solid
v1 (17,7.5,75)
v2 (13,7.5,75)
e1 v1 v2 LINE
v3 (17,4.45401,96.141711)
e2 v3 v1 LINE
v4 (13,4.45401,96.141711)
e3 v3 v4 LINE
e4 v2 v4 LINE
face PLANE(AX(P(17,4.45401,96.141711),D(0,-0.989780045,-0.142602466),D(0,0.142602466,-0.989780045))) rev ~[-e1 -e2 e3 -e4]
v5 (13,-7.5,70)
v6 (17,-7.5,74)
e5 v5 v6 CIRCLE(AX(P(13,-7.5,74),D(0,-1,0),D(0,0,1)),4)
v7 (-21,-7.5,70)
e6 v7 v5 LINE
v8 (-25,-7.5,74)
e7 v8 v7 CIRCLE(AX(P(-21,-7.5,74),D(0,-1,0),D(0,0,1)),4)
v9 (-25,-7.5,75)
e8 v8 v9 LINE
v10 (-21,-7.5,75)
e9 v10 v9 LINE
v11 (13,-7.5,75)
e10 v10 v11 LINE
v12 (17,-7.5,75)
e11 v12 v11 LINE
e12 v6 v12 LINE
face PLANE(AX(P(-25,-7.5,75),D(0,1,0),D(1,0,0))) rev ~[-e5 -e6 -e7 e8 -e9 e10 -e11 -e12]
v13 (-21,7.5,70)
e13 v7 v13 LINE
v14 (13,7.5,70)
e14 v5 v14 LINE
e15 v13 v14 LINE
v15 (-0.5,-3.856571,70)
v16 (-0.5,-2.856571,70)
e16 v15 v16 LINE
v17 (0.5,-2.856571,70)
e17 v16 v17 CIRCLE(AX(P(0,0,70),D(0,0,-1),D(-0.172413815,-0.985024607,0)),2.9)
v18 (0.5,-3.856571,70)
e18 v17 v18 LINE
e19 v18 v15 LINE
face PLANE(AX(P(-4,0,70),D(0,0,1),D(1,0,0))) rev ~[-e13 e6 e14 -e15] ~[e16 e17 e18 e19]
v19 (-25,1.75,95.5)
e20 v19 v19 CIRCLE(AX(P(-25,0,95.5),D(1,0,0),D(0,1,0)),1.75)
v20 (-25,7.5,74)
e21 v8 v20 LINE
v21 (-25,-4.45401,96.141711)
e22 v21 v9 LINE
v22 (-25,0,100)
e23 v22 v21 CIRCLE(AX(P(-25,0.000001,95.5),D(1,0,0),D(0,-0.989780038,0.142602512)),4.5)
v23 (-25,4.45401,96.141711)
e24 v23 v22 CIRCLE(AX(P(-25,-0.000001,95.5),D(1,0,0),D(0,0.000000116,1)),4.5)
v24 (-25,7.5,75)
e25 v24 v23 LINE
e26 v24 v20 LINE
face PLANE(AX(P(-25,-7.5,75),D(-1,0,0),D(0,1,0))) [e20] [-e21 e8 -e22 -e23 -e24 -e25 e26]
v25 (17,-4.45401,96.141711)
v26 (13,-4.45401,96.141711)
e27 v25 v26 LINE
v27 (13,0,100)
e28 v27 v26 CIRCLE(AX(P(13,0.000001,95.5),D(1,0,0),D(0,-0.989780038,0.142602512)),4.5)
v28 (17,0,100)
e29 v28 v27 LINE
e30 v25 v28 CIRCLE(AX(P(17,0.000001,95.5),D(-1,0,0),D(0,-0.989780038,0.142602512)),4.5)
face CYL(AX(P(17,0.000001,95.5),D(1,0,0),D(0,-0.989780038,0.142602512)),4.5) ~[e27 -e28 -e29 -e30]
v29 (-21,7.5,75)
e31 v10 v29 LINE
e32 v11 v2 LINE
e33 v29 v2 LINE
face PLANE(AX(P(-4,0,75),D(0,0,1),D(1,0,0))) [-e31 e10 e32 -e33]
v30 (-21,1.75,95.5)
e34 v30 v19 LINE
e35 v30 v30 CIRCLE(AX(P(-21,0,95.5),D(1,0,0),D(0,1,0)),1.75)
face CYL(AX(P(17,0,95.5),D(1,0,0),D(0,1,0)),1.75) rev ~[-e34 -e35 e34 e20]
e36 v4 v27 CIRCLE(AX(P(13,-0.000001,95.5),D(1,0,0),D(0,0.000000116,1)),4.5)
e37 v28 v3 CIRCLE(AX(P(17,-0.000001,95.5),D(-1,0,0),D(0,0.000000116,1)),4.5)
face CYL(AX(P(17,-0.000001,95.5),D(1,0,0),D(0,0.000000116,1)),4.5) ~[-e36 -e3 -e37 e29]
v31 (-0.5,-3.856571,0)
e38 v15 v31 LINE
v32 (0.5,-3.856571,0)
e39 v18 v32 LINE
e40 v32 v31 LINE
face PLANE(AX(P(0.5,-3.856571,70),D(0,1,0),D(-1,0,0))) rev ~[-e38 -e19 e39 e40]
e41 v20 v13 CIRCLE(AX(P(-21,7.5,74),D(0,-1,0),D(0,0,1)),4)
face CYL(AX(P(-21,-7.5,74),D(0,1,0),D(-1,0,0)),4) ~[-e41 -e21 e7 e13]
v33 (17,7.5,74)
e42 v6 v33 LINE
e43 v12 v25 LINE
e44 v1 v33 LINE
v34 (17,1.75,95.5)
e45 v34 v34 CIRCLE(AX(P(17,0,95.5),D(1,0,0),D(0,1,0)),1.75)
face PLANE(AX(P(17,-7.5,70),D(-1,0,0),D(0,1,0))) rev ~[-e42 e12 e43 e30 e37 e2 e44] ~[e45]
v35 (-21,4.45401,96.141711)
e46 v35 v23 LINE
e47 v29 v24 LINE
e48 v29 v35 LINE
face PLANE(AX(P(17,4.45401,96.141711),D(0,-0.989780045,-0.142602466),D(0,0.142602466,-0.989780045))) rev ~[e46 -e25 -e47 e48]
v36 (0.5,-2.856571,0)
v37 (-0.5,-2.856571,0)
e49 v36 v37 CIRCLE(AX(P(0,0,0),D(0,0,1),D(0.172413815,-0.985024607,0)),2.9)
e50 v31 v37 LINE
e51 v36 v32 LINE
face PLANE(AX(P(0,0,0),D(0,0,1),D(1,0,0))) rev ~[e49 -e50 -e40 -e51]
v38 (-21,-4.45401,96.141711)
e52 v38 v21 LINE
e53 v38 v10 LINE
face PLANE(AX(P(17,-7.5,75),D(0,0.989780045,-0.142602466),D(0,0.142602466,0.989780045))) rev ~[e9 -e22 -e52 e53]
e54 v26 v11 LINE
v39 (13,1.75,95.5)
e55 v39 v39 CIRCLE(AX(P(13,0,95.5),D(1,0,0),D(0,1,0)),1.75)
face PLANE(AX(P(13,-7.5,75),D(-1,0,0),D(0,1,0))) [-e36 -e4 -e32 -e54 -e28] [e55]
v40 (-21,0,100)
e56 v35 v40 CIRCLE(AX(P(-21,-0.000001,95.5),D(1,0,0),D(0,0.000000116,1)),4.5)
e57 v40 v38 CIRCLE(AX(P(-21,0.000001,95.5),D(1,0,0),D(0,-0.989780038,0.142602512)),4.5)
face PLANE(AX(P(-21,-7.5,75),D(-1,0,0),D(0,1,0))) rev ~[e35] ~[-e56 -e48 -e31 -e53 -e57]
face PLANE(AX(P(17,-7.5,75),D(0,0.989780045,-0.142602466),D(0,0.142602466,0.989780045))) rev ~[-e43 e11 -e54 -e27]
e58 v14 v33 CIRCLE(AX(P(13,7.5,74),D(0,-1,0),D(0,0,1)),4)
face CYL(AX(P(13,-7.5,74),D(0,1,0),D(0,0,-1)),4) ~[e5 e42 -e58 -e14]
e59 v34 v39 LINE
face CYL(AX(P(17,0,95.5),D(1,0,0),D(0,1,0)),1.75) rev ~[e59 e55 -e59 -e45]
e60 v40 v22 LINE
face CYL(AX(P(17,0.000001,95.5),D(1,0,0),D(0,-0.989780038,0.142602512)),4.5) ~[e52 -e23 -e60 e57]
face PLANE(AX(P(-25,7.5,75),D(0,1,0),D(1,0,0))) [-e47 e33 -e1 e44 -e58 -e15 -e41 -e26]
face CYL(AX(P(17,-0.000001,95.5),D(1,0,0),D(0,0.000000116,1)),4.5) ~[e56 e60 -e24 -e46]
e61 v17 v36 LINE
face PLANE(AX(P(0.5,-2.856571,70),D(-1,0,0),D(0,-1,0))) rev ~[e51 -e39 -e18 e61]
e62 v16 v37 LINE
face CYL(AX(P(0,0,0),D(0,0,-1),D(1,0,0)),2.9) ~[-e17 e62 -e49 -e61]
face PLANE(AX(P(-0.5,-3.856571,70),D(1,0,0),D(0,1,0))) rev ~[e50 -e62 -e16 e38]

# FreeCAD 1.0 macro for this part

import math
import FreeCAD as App
import Part
import Sketcher
Q = App.Units.Quantity


def edges_at(feature, points):
    """Names of the edges that pass closest to the given points."""
    edges = feature.Shape.Edges
    near = lambda p: min(range(len(edges)), key=lambda i: edges[i].distToShape(Part.Vertex(*p))[0])
    return sorted({f"Edge{near(p) + 1}" for p in points})


def add_polygon(sketch, points):
    """Adds a closed chain of lines whose ends are joined by coincident constraints."""
    first, n = sketch.GeometryCount, len(points)
    for a, b in zip(points, points[1:] + points[:1]):
        sketch.addGeometry(Part.LineSegment(App.Vector(*a, 0), App.Vector(*b, 0)), False)
    for i in range(n):
        sketch.addConstraint(Sketcher.Constraint("Coincident", first + i, 2, first + (i + 1) % n, 1))

doc = App.newDocument("Part")
body = doc.addObject("PartDesign::Body", "Body")

# Sketch on XY plane
sketch1 = body.newObject("Sketcher::SketchObject", "Sketch")
sketch1.AttachmentSupport = (doc.getObject("XY_Plane"), [""])
sketch1.MapMode = "FlatFace"
sketch1.addGeometry(Part.Circle(App.Vector(0, 0, 0), App.Vector(0, 0, 1), 2.9), False)
sketch1.addConstraint(Sketcher.Constraint("Coincident", 0, 3, -1, 1))
sketch1.addConstraint(Sketcher.Constraint("Diameter", 0, Q("5.8 mm")))
pad1 = body.newObject("PartDesign::Pad", "Pad")
pad1.Profile = sketch1
pad1.Length = 70

# Sketch on XY plane
sketch2 = body.newObject("Sketcher::SketchObject", "Sketch001")
sketch2.AttachmentSupport = (doc.getObject("XY_Plane"), [""])
sketch2.MapMode = "FlatFace"
sketch2.AttachmentOffset = App.Placement(App.Vector(0, 0, 70), App.Rotation())
add_polygon(sketch2, [(-25, 8), (-25, -8), (17, -8), (17, 8)])  # lines 0-3
sketch2.addConstraint(Sketcher.Constraint("Vertical", 0))
sketch2.addConstraint(Sketcher.Constraint("Horizontal", 1))
sketch2.addConstraint(Sketcher.Constraint("Vertical", 2))
sketch2.addConstraint(Sketcher.Constraint("Horizontal", 3))
sketch2.addConstraint(Sketcher.Constraint("DistanceX", 1, 1, 1, 2, Q("42 mm")))
sketch2.addConstraint(Sketcher.Constraint("DistanceY", 0, 2, 0, 1, Q("15 mm")))
sketch2.addConstraint(Sketcher.Constraint("DistanceX", 0, 2, -1, 1, Q("25 mm")))
sketch2.addConstraint(Sketcher.Constraint("DistanceY", 0, 2, -1, 1, Q("7.5 mm")))
pad2 = body.newObject("PartDesign::Pad", "Pad001")
pad2.Profile = sketch2
pad2.Length = 5

# Sketch on XY plane
sketch3 = body.newObject("Sketcher::SketchObject", "Sketch002")
sketch3.AttachmentSupport = (doc.getObject("XY_Plane"), [""])
sketch3.MapMode = "FlatFace"
sketch3.AttachmentOffset = App.Placement(App.Vector(0, 0, 75), App.Rotation())
add_polygon(sketch3, [(-25, 7.5), (-25, -7.5), (-21, -7.5), (-21, 7.5)])  # lines 0-3
add_polygon(sketch3, [(13, 7.5), (13, -7.5), (17, -7.5), (17, 7.5)])  # lines 4-7
sketch3.addConstraint(Sketcher.Constraint("Vertical", 0))
sketch3.addConstraint(Sketcher.Constraint("Horizontal", 1))
sketch3.addConstraint(Sketcher.Constraint("Vertical", 2))
sketch3.addConstraint(Sketcher.Constraint("Horizontal", 3))
sketch3.addConstraint(Sketcher.Constraint("Vertical", 4))
sketch3.addConstraint(Sketcher.Constraint("Horizontal", 5))
sketch3.addConstraint(Sketcher.Constraint("Vertical", 6))
sketch3.addConstraint(Sketcher.Constraint("Horizontal", 7))
sketch3.addConstraint(Sketcher.Constraint("Horizontal", 1, 2, 4, 2))
sketch3.addConstraint(Sketcher.Constraint("Horizontal", 3, 2, 6, 2))
sketch3.addConstraint(Sketcher.Constraint("Equal", 3, 5))
sketch3.addConstraint(Sketcher.Constraint("DistanceX", 1, 1, 1, 2, Q("4 mm")))
sketch3.addConstraint(Sketcher.Constraint("DistanceY", 0, 2, 0, 1, Q("15 mm")))
sketch3.addConstraint(Sketcher.Constraint("DistanceX", 0, 2, -1, 1, Q("25 mm")))
sketch3.addConstraint(Sketcher.Constraint("DistanceX", -1, 1, 4, 2, Q("13 mm")))
sketch3.addConstraint(Sketcher.Constraint("DistanceY", 0, 2, -1, 1, Q("7.5 mm")))
pad3 = body.newObject("PartDesign::Pad", "Pad002")
pad3.Profile = sketch3
pad3.Length = 25

# Sketch on YZ plane
sketch4 = body.newObject("Sketcher::SketchObject", "Sketch003")
sketch4.AttachmentSupport = (doc.getObject("YZ_Plane"), [""])
sketch4.MapMode = "FlatFace"
sketch4.AttachmentOffset = App.Placement(App.Vector(0, 0, 17), App.Rotation())
sketch4.addGeometry(Part.LineSegment(App.Vector(-7.5, 75, 0), App.Vector(-4.5, 96.1, 0)), False)
sketch4.addGeometry(Part.ArcOfCircle(Part.Circle(App.Vector(0, 95.5, 0), App.Vector(0, 0, 1), 4.5), math.radians(90), math.radians(172)), False)
sketch4.addGeometry(Part.LineSegment(App.Vector(0, 100, 0), App.Vector(-7.5, 100, 0)), False)
sketch4.addGeometry(Part.LineSegment(App.Vector(-7.5, 100, 0), App.Vector(-7.5, 75, 0)), False)
sketch4.addGeometry(Part.Circle(App.Vector(0, 95.5, 0), App.Vector(0, 0, 1), 1.8), False)
sketch4.addGeometry(Part.LineSegment(App.Vector(7.5, 100, 0), App.Vector(0, 100, 0)), False)
sketch4.addGeometry(Part.ArcOfCircle(Part.Circle(App.Vector(0, 95.5, 0), App.Vector(0, 0, 1), 4.5), math.radians(8), math.radians(90)), False)
sketch4.addGeometry(Part.LineSegment(App.Vector(4.5, 96.1, 0), App.Vector(7.5, 75, 0)), False)
sketch4.addGeometry(Part.LineSegment(App.Vector(7.5, 75, 0), App.Vector(7.5, 100, 0)), False)
sketch4.addConstraint(Sketcher.Constraint("Tangent", 0, 2, 1, 2))
sketch4.addConstraint(Sketcher.Constraint("Tangent", 1, 1, 2, 1))
sketch4.addConstraint(Sketcher.Constraint("Coincident", 2, 2, 3, 1))
sketch4.addConstraint(Sketcher.Constraint("Coincident", 3, 2, 0, 1))
sketch4.addConstraint(Sketcher.Constraint("Tangent", 5, 2, 6, 2))
sketch4.addConstraint(Sketcher.Constraint("Tangent", 6, 1, 7, 1))
sketch4.addConstraint(Sketcher.Constraint("Coincident", 7, 2, 8, 1))
sketch4.addConstraint(Sketcher.Constraint("Coincident", 8, 2, 5, 1))
sketch4.addConstraint(Sketcher.Constraint("Horizontal", 2))
sketch4.addConstraint(Sketcher.Constraint("Vertical", 3))
sketch4.addConstraint(Sketcher.Constraint("Horizontal", 5))
sketch4.addConstraint(Sketcher.Constraint("Vertical", 8))
sketch4.addConstraint(Sketcher.Constraint("Coincident", 4, 3, 1, 3))
sketch4.addConstraint(Sketcher.Constraint("Coincident", 6, 3, 1, 3))
sketch4.addConstraint(Sketcher.Constraint("Equal", 1, 6))
sketch4.addConstraint(Sketcher.Constraint("Symmetric", 0, 2, 6, 1, -2))
sketch4.addConstraint(Sketcher.Constraint("Horizontal", 3, 2, 7, 2))
sketch4.addConstraint(Sketcher.Constraint("Diameter", 4, Q("3.5 mm")))
sketch4.addConstraint(Sketcher.Constraint("Radius", 1, Q("4.5 mm")))
sketch4.addConstraint(Sketcher.Constraint("DistanceY", 3, 2, 3, 1, Q("25 mm")))
sketch4.addConstraint(Sketcher.Constraint("DistanceX", 2, 2, 2, 1, Q("7.5 mm")))
sketch4.addConstraint(Sketcher.Constraint("DistanceY", -1, 1, 1, 1, Q("100 mm")))
pocket1 = body.newObject("PartDesign::Pocket", "Pocket")
pocket1.Profile = sketch4
pocket1.Length = 50
doc.recompute()

fillet = body.newObject("PartDesign::Fillet", "Fillet")
fillet.Base = (pocket1, edges_at(pocket1, [(-25, 0, 70), (17, 0, 70)]))
fillet.Radius = 4

# Sketch on XY plane
sketch5 = body.newObject("Sketcher::SketchObject", "Sketch004")
sketch5.AttachmentSupport = (doc.getObject("XY_Plane"), [""])
sketch5.MapMode = "FlatFace"
sketch5.AttachmentOffset = App.Placement(App.Vector(0, 0, 70), App.Rotation())
sketch5.addGeometry(Part.ArcOfCircle(Part.Circle(App.Vector(0, 0, 0), App.Vector(0, 0, 1), 2.9), math.radians(0), math.radians(260)), False)
sketch5.addGeometry(Part.ArcOfCircle(Part.Circle(App.Vector(0, 0, 0), App.Vector(0, 0, 1), 2.9), math.radians(-80), math.radians(0)), False)
sketch5.addGeometry(Part.LineSegment(App.Vector(0.5, -2.9, 0), App.Vector(0.5, -3.9, 0)), False)
sketch5.addGeometry(Part.LineSegment(App.Vector(0.5, -3.9, 0), App.Vector(-0.5, -3.9, 0)), False)
sketch5.addGeometry(Part.LineSegment(App.Vector(-0.5, -3.9, 0), App.Vector(-0.5, -2.9, 0)), False)
sketch5.addConstraint(Sketcher.Constraint("Tangent", 0, 1, 1, 2))
sketch5.addConstraint(Sketcher.Constraint("Coincident", 1, 1, 2, 1))
sketch5.addConstraint(Sketcher.Constraint("Coincident", 2, 2, 3, 1))
sketch5.addConstraint(Sketcher.Constraint("Coincident", 3, 2, 4, 1))
sketch5.addConstraint(Sketcher.Constraint("Coincident", 4, 2, 0, 2))
sketch5.addConstraint(Sketcher.Constraint("Vertical", 2))
sketch5.addConstraint(Sketcher.Constraint("Horizontal", 3))
sketch5.addConstraint(Sketcher.Constraint("Vertical", 4))
sketch5.addConstraint(Sketcher.Constraint("Coincident", 0, 3, -1, 1))
sketch5.addConstraint(Sketcher.Constraint("Equal", 0, 1))
sketch5.addConstraint(Sketcher.Constraint("PointOnObject", 0, 1, -1))
sketch5.addConstraint(Sketcher.Constraint("Horizontal", 1, 1, 4, 2))
sketch5.addConstraint(Sketcher.Constraint("Equal", 3, 2))
sketch5.addConstraint(Sketcher.Constraint("Radius", 0, Q("2.9 mm")))
sketch5.addConstraint(Sketcher.Constraint("DistanceX", 3, 2, 3, 1, Q("1 mm")))
pad4 = body.newObject("PartDesign::Pad", "Pad003")
pad4.Profile = sketch5
pad4.Length = 70
pad4.Reversed = True

doc.recompute()
